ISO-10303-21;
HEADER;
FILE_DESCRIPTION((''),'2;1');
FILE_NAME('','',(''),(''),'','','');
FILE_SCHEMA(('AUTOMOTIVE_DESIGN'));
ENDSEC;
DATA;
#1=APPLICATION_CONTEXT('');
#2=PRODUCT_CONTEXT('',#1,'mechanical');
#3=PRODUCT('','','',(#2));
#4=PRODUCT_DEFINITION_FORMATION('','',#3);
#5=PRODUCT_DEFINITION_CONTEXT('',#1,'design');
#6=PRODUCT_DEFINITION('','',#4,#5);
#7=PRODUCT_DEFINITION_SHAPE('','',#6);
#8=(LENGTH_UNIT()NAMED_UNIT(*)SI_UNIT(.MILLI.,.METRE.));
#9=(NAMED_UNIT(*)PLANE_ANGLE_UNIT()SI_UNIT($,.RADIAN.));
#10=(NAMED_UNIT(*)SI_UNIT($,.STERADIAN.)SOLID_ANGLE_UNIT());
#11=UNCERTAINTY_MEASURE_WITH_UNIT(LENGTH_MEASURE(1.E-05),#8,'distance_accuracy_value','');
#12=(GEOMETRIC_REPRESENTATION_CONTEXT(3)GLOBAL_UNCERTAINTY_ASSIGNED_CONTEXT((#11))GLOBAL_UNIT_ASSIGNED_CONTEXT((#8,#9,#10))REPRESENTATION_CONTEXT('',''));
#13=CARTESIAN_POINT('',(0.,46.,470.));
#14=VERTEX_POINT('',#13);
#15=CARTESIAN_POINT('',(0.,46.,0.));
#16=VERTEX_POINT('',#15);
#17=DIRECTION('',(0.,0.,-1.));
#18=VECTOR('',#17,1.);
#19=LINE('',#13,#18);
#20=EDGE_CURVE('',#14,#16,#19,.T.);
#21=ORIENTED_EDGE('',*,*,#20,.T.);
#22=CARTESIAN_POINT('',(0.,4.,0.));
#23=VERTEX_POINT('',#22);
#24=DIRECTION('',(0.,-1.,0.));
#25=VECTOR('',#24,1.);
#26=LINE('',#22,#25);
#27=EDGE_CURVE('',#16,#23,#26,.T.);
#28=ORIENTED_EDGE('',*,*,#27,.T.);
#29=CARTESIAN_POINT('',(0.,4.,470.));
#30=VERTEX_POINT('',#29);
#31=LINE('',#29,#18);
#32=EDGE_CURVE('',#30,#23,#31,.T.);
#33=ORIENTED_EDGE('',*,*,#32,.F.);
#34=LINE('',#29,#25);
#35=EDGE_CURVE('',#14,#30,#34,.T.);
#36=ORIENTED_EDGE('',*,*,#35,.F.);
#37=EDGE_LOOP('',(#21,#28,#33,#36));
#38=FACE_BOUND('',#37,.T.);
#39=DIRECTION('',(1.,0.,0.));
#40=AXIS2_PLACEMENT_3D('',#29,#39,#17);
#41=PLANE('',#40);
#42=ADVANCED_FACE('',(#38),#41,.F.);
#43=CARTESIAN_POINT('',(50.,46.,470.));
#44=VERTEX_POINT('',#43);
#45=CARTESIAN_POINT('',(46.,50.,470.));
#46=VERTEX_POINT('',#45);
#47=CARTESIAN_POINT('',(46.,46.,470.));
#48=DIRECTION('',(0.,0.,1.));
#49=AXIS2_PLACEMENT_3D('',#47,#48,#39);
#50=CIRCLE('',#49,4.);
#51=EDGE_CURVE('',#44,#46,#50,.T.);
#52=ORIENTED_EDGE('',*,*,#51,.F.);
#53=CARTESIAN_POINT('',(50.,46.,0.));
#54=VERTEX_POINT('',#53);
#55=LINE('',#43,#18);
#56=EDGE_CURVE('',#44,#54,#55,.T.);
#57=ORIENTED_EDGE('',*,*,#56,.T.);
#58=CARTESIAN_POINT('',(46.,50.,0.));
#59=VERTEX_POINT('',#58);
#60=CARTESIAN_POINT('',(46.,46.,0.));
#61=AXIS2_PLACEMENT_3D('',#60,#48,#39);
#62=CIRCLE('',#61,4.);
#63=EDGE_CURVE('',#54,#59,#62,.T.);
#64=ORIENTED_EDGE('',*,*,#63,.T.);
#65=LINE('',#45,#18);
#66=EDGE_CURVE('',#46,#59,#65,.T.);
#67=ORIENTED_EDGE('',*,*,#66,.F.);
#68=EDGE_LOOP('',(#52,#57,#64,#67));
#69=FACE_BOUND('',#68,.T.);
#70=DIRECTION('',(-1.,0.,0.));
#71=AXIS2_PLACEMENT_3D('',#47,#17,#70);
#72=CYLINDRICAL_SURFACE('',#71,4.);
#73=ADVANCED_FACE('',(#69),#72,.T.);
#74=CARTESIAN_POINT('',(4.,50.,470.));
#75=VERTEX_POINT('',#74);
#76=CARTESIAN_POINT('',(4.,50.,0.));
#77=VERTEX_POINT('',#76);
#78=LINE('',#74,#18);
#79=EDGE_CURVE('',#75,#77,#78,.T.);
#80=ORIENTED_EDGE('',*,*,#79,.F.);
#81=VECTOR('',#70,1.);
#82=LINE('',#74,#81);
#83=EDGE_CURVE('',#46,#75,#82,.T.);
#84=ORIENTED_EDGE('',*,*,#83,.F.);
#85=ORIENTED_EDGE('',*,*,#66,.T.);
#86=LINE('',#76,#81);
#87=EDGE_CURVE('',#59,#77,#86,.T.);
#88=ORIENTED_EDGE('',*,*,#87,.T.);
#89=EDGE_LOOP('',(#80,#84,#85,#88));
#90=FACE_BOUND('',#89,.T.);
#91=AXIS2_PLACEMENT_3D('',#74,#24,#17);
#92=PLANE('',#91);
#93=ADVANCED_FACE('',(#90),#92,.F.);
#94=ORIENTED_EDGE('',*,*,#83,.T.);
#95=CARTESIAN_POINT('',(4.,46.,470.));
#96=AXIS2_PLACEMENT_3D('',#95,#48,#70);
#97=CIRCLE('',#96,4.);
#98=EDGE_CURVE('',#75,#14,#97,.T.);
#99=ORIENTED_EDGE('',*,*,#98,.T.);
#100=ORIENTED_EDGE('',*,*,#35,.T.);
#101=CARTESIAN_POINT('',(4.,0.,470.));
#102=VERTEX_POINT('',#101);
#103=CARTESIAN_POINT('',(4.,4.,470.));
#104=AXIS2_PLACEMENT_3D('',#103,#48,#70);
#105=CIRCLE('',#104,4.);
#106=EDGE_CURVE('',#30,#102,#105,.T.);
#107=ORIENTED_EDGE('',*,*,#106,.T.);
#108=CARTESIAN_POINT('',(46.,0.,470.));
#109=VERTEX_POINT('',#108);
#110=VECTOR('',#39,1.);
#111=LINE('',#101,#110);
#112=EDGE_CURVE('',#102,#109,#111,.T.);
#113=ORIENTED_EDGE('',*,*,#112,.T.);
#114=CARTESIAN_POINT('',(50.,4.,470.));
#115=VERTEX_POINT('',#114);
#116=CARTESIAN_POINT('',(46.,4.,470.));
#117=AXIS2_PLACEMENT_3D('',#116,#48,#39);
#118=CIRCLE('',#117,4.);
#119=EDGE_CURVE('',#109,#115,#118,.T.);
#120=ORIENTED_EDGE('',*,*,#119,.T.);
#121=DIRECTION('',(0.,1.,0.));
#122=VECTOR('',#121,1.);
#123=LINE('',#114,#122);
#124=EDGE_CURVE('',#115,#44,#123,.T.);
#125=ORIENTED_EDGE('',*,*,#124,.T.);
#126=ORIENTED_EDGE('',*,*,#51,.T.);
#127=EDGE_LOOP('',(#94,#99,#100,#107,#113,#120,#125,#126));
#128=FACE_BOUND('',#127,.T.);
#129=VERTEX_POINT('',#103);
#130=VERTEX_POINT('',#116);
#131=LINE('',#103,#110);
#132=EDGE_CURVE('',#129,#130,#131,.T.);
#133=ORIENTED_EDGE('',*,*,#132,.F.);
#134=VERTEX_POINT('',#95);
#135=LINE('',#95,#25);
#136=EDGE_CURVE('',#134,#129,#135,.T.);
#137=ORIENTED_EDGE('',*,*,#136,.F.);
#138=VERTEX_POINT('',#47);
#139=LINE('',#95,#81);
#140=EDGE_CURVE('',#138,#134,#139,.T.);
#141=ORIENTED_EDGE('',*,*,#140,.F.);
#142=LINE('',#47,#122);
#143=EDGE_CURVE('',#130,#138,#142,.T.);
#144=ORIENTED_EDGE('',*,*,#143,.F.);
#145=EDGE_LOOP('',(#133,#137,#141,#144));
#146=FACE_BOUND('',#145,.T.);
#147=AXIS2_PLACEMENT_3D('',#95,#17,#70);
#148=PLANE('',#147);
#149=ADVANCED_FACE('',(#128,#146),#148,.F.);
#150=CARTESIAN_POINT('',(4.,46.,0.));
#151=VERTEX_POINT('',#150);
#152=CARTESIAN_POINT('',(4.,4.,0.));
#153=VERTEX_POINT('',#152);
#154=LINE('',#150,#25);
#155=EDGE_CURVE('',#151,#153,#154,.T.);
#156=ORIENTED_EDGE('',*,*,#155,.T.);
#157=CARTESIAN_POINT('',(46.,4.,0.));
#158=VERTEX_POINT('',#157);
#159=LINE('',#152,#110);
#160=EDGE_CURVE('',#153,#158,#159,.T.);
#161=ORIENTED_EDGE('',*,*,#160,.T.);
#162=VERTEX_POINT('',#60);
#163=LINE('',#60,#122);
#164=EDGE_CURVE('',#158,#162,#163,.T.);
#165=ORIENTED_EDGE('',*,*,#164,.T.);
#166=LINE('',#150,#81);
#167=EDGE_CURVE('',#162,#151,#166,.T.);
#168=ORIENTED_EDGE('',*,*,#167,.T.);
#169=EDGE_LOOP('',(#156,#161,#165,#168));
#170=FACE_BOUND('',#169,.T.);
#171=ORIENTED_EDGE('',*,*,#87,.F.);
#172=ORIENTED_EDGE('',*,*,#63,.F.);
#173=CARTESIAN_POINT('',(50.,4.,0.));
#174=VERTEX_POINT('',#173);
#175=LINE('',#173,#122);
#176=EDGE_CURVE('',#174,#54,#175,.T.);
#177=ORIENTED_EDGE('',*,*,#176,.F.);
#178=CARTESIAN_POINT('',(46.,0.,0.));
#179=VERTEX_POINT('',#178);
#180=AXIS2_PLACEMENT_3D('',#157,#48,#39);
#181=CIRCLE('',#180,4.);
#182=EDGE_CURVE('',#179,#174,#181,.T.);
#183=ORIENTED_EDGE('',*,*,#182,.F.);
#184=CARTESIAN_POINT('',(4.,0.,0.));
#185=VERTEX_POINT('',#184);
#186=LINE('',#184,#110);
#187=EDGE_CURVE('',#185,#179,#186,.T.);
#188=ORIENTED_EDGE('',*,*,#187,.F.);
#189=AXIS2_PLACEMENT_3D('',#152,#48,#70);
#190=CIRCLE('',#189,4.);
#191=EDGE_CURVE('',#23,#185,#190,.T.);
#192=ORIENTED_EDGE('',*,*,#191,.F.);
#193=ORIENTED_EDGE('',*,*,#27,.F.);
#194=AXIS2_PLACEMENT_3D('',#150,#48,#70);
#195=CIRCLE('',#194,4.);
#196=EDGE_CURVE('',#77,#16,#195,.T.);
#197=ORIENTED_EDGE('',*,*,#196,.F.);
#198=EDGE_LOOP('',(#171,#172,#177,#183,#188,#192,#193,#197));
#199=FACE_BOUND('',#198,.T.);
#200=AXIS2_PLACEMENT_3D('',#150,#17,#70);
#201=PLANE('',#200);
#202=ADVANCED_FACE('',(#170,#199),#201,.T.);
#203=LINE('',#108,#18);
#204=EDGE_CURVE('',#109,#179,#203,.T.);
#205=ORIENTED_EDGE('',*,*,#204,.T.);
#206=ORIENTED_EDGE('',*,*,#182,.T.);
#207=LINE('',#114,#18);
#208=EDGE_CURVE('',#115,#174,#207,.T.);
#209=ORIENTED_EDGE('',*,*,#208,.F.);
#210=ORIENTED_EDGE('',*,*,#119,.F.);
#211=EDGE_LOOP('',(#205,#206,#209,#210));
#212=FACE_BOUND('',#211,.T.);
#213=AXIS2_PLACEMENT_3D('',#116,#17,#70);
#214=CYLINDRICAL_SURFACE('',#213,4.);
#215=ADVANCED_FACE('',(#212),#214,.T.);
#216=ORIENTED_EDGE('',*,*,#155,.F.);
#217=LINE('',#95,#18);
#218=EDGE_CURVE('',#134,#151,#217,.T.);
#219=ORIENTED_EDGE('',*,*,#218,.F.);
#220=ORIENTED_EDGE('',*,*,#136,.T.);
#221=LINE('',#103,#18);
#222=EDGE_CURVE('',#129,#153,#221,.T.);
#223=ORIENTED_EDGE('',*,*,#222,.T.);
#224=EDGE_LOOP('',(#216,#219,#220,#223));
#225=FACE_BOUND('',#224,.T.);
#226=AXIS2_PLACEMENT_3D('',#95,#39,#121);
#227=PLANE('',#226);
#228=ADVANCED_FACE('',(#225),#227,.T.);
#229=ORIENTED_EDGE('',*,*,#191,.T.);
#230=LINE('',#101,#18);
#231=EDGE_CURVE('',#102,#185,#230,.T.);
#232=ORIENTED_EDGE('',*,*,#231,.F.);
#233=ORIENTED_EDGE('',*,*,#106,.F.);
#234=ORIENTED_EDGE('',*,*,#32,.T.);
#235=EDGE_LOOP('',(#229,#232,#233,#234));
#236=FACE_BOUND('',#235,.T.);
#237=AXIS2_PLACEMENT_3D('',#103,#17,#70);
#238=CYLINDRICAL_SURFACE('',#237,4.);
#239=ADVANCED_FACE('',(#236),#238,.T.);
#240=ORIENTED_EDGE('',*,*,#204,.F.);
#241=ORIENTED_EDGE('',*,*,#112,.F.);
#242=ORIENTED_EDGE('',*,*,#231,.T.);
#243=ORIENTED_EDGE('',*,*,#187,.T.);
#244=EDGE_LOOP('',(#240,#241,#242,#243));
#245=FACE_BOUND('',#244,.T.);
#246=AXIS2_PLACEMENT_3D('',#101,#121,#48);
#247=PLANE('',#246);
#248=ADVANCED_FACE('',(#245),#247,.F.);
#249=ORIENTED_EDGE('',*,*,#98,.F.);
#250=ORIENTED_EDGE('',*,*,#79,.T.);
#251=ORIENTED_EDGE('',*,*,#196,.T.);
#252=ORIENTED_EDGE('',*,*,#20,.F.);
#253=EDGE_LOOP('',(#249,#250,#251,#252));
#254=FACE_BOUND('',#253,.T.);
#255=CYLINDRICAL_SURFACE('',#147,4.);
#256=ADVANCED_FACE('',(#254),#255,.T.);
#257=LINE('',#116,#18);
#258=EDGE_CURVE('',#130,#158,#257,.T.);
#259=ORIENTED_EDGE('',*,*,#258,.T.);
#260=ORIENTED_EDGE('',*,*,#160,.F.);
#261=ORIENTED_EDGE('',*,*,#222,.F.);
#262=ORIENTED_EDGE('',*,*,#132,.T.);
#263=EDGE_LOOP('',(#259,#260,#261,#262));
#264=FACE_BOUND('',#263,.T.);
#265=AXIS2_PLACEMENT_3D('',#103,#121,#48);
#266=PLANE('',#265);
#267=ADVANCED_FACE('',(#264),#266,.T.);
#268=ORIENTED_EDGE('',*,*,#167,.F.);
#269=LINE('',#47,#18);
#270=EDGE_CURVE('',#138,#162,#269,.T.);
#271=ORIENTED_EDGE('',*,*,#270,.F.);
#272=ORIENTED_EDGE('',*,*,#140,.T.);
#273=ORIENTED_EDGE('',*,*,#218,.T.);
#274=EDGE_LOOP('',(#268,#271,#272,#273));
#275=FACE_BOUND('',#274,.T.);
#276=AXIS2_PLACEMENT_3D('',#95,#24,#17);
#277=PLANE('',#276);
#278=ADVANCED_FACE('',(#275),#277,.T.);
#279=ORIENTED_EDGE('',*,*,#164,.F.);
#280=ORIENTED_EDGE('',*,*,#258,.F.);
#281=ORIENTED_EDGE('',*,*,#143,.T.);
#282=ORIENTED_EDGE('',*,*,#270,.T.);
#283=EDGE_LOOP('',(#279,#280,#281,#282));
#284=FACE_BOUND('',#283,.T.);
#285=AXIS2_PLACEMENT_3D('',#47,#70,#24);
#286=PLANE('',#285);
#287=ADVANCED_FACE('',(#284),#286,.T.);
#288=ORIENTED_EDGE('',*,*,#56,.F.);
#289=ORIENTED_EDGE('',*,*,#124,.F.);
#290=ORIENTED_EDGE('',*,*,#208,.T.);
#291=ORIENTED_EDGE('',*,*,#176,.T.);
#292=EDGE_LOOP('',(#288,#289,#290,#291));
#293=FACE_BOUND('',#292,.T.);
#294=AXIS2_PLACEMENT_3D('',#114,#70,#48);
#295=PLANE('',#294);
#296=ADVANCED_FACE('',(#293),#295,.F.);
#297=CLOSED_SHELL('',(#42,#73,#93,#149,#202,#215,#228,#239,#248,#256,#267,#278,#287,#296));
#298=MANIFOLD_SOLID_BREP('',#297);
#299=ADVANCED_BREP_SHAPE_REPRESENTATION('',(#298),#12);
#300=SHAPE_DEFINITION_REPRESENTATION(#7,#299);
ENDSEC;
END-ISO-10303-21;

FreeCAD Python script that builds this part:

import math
import FreeCAD as App
import Part
import Sketcher

V = App.Vector
Q = App.Units.Quantity


def add_polygon(sketch, points):
    """Adds a closed chain of lines whose ends are joined by coincident constraints."""
    first, n = sketch.GeometryCount, len(points)
    for a, b in zip(points, points[1:] + points[:1]):
        sketch.addGeometry(Part.LineSegment(App.Vector(*a, 0), App.Vector(*b, 0)), False)
    for i in range(n):
        sketch.addConstraint(Sketcher.Constraint("Coincident", first + i, 2, first + (i + 1) % n, 1))

doc = App.newDocument("Part")
params = doc.addObject("Spreadsheet::Sheet", "Params")
for row, (alias, value) in enumerate([
    ("sketch1_radius", "4 mm"),
    ("sketch1_width", "42 mm"),
    ("pad1_length", "470 mm"),
], start=1):
    params.set(f"A{row}", alias)
    params.set(f"B{row}", "=" + value)
    params.setAlias(f"B{row}", alias)

body = doc.addObject("PartDesign::Body", "Body")

# Sketch on XY plane
sketch1 = body.newObject("Sketcher::SketchObject", "Sketch")
sketch1.AttachmentSupport = (doc.getObject("XY_Plane"), [""])
sketch1.MapMode = "FlatFace"
sketch1.addGeometry(Part.LineSegment(V(4, 0, 0), V(46, 0, 0)), False)  # 0
sketch1.addGeometry(Part.ArcOfCircle(Part.Circle(V(46, 4, 0), V(0, 0, 1), 4), math.radians(-90), math.radians(0)), False)  # 1
sketch1.addGeometry(Part.LineSegment(V(50, 4, 0), V(50, 46, 0)), False)  # 2
sketch1.addGeometry(Part.ArcOfCircle(Part.Circle(V(46, 46, 0), V(0, 0, 1), 4), math.radians(0), math.radians(90)), False)  # 3
sketch1.addGeometry(Part.LineSegment(V(46, 50, 0), V(4, 50, 0)), False)  # 4
sketch1.addGeometry(Part.ArcOfCircle(Part.Circle(V(4, 46, 0), V(0, 0, 1), 4), math.radians(90), math.radians(180)), False)  # 5
sketch1.addGeometry(Part.LineSegment(V(0, 46, 0), V(0, 4, 0)), False)  # 6
sketch1.addGeometry(Part.ArcOfCircle(Part.Circle(V(4, 4, 0), V(0, 0, 1), 4), math.radians(180), math.radians(270)), False)  # 7
add_polygon(sketch1, [(46, 4), (4, 4), (4, 46), (46, 46)])  # lines 8-11
sketch1.addConstraint(Sketcher.Constraint("Tangent", 0, 2, 1, 1))
sketch1.addConstraint(Sketcher.Constraint("Tangent", 1, 2, 2, 1))
sketch1.addConstraint(Sketcher.Constraint("Tangent", 2, 2, 3, 1))
sketch1.addConstraint(Sketcher.Constraint("Tangent", 3, 2, 4, 1))
sketch1.addConstraint(Sketcher.Constraint("Tangent", 4, 2, 5, 1))
sketch1.addConstraint(Sketcher.Constraint("Tangent", 5, 2, 6, 1))
sketch1.addConstraint(Sketcher.Constraint("Tangent", 6, 2, 7, 1))
sketch1.addConstraint(Sketcher.Constraint("Tangent", 7, 2, 0, 1))
sketch1.addConstraint(Sketcher.Constraint("Horizontal", 0))
sketch1.addConstraint(Sketcher.Constraint("Vertical", 2))
sketch1.addConstraint(Sketcher.Constraint("Horizontal", 4))
sketch1.addConstraint(Sketcher.Constraint("Vertical", 6))
sketch1.addConstraint(Sketcher.Constraint("Horizontal", 8))
sketch1.addConstraint(Sketcher.Constraint("Vertical", 9))
sketch1.addConstraint(Sketcher.Constraint("Horizontal", 10))
sketch1.addConstraint(Sketcher.Constraint("Vertical", 11))
sketch1.addConstraint(Sketcher.Constraint("Coincident", 8, 2, 7, 3))
sketch1.addConstraint(Sketcher.Constraint("Coincident", 9, 2, 5, 3))
sketch1.addConstraint(Sketcher.Constraint("Coincident", 10, 2, 3, 3))
sketch1.addConstraint(Sketcher.Constraint("Equal", 1, 3))
sketch1.addConstraint(Sketcher.Constraint("PointOnObject", 0, 2, -1))
sketch1.addConstraint(Sketcher.Constraint("PointOnObject", 5, 2, -2))
sketch1.addConstraint(Sketcher.Constraint("Equal", 10, 2))
sketch1.addConstraint(Sketcher.Constraint("Radius", 1, Q("4 mm")))
sketch1.addConstraint(Sketcher.Constraint("DistanceX", 0, 1, 0, 2, Q("42 mm")))
sketch1.setExpression("Constraints[27]", "Params.sketch1_radius")
sketch1.setExpression("Constraints[28]", "Params.sketch1_width")
pad1 = body.newObject("PartDesign::Pad", "Pad")
pad1.Profile = sketch1
pad1.setExpression("Length", "Params.pad1_length")

doc.recompute()
